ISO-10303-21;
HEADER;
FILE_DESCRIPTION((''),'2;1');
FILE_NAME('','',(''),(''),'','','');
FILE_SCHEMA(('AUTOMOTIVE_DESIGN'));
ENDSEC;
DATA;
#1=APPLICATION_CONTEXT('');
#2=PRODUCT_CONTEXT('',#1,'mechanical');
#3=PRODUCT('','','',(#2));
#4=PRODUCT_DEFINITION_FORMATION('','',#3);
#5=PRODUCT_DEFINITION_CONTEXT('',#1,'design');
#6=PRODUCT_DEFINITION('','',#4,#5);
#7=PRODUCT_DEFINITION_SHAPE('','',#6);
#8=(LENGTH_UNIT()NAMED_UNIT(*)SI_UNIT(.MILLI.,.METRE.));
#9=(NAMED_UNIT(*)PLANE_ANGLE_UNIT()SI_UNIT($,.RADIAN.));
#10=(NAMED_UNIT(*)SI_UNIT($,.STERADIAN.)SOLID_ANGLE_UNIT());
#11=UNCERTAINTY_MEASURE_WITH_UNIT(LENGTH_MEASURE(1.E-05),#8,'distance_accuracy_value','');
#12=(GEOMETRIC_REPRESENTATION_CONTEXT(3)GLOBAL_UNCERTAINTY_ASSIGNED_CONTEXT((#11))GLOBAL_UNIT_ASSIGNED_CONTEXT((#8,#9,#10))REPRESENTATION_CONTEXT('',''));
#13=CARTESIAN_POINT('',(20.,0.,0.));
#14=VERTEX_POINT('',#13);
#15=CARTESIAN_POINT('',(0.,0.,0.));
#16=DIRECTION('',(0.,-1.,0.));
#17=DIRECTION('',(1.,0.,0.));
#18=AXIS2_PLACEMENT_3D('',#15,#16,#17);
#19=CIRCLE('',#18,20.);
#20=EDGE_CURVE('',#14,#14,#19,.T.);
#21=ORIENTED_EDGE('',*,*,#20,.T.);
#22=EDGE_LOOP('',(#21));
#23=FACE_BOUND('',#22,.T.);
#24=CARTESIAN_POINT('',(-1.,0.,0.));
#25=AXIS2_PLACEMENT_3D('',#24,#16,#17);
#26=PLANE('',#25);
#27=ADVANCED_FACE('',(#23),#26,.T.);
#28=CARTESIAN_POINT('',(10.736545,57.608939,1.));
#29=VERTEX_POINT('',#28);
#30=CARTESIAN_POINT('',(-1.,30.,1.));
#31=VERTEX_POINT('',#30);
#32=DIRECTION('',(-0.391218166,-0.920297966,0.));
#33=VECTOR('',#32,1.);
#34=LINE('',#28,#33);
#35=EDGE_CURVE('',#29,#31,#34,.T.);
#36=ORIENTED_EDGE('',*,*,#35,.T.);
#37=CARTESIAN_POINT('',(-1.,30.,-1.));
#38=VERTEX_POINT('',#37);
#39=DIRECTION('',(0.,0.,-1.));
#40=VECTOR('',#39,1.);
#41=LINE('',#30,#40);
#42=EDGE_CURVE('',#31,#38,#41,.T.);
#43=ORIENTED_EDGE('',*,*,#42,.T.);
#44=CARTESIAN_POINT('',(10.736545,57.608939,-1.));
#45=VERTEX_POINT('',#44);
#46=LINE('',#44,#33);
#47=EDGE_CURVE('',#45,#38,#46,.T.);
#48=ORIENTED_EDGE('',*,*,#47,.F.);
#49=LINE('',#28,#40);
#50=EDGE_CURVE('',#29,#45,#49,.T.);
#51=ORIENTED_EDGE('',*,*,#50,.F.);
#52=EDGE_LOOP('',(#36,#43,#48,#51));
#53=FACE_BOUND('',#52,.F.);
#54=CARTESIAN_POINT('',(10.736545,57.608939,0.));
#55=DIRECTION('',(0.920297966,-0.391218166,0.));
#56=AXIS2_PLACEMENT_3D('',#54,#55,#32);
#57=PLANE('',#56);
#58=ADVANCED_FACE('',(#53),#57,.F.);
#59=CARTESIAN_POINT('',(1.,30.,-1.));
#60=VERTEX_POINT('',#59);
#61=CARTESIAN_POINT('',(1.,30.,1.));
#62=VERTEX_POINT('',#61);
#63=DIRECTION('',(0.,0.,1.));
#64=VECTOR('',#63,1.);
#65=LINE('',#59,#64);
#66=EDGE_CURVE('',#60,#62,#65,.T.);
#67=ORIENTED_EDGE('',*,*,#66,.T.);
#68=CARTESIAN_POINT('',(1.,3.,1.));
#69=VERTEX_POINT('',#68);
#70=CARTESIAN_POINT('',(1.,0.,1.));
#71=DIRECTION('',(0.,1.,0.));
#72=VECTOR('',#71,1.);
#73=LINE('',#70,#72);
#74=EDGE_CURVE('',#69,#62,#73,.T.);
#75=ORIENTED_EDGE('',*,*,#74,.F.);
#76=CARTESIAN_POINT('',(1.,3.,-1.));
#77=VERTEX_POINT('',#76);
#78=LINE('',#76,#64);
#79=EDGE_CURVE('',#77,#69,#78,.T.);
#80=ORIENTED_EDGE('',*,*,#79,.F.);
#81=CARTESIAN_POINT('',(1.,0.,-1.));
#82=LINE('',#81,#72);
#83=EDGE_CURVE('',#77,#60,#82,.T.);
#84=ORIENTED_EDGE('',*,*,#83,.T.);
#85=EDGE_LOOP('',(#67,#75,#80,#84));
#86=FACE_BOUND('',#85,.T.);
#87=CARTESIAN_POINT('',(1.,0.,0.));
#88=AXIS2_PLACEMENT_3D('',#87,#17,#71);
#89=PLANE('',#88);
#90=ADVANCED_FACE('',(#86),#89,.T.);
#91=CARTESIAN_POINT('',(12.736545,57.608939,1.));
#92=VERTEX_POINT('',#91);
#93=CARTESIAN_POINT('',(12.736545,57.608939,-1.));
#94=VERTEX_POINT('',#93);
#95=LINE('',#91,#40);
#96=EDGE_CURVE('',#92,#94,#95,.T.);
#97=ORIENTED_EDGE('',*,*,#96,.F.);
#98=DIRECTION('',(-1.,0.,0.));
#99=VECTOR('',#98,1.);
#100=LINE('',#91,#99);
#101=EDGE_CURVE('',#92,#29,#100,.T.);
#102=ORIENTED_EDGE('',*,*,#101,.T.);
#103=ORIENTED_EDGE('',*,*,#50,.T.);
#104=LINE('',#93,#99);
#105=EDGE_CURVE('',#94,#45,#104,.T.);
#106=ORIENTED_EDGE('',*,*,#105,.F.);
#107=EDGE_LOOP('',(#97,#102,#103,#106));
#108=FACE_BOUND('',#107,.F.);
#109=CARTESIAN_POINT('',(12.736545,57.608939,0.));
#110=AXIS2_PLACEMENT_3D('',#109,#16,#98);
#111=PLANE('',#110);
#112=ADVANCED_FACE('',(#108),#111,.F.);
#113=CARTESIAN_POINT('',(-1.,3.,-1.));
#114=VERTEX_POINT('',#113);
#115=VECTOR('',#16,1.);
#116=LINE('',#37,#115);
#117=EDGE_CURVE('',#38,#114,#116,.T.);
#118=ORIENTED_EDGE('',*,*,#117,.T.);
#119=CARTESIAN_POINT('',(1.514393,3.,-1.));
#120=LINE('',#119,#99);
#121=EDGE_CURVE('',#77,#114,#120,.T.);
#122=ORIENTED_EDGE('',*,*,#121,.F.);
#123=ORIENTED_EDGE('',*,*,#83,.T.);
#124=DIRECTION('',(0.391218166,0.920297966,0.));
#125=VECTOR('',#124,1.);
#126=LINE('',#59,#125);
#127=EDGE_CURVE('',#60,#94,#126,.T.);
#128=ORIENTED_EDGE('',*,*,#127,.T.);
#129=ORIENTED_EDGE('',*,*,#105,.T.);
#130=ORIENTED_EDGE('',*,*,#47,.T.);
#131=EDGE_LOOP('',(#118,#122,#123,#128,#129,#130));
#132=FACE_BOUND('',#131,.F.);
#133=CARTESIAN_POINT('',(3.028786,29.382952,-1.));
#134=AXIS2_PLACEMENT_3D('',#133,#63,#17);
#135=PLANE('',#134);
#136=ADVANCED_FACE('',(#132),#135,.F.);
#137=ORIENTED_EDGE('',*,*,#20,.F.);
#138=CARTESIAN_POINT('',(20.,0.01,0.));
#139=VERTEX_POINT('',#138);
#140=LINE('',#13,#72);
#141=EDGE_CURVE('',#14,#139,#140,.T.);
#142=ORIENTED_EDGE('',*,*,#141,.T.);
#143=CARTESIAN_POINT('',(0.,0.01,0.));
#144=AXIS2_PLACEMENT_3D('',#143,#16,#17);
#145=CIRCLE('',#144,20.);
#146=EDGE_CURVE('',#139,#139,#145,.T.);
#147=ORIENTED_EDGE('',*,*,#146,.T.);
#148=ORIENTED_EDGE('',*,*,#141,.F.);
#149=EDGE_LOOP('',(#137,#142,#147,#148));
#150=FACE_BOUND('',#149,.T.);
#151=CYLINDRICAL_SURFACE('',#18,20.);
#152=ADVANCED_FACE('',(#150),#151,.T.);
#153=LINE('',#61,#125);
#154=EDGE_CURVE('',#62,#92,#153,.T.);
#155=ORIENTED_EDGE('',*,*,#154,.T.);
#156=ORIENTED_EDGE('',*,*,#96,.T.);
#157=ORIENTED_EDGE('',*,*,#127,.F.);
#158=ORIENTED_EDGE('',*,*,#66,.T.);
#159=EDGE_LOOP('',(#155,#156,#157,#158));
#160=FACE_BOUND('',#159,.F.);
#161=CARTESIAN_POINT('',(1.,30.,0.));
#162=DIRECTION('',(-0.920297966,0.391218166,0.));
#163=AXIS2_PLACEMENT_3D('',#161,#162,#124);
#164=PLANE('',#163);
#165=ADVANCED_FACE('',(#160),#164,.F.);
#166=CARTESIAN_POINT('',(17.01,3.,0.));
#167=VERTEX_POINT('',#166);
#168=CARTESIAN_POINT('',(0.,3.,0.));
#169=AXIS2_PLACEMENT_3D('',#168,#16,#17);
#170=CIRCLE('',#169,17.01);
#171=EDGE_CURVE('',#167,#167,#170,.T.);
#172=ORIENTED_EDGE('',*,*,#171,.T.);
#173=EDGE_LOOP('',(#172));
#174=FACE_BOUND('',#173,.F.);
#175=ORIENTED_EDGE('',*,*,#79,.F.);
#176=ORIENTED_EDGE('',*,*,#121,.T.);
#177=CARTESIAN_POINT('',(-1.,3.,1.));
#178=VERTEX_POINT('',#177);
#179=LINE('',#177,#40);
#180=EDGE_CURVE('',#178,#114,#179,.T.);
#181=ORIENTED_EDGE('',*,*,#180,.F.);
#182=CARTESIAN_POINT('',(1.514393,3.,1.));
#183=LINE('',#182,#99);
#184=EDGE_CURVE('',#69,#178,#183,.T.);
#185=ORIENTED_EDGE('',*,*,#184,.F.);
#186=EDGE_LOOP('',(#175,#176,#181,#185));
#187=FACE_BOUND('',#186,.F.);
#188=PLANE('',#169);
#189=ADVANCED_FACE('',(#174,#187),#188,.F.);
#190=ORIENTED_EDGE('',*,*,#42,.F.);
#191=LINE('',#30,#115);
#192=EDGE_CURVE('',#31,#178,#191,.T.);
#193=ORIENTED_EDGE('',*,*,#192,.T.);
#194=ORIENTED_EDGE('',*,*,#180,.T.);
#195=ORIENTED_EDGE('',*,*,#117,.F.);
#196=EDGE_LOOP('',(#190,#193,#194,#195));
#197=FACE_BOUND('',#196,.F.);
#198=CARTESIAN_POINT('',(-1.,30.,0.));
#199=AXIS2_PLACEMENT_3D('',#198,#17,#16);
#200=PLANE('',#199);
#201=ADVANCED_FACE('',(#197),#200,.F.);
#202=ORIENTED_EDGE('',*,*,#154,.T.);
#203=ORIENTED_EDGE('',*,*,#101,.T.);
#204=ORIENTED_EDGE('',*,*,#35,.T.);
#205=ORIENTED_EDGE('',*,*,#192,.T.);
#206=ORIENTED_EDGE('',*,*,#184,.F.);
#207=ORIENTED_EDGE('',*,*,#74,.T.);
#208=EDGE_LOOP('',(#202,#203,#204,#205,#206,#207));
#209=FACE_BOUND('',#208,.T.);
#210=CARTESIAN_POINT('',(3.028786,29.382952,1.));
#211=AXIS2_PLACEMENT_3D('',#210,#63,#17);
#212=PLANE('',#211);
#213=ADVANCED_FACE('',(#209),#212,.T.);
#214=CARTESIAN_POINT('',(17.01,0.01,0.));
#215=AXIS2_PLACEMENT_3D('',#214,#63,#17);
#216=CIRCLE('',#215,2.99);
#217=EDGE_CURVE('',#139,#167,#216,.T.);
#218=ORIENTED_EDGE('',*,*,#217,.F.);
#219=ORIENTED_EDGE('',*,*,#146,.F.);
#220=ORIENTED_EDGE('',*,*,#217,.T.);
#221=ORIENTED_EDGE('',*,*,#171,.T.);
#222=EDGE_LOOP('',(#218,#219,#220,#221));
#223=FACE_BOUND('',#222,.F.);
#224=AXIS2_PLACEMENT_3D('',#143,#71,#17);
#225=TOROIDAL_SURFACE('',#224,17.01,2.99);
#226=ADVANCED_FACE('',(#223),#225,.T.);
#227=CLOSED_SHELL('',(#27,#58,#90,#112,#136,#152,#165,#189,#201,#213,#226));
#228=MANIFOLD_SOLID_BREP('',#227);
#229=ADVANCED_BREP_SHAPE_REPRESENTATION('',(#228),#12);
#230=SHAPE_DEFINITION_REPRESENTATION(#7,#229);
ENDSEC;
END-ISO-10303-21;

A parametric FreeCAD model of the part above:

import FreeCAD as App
import Part
import Sketcher
from FreeCAD import Vector
Q = App.Units.Quantity


def edges_at(feature, points):
    """Names of the edges that pass closest to the given points."""
    edges = feature.Shape.Edges
    near = lambda p: min(range(len(edges)), key=lambda i: edges[i].distToShape(Part.Vertex(*p))[0])
    return sorted({f"Edge{near(p) + 1}" for p in points})


def add_polygon(sketch, points):
    """Adds a closed chain of lines whose ends are joined by coincident constraints."""
    first, n = sketch.GeometryCount, len(points)
    for a, b in zip(points, points[1:] + points[:1]):
        sketch.addGeometry(Part.LineSegment(App.Vector(*a, 0), App.Vector(*b, 0)), False)
    for i in range(n):
        sketch.addConstraint(Sketcher.Constraint("Coincident", first + i, 2, first + (i + 1) % n, 1))

doc = App.newDocument("Part")
params = doc.addObject("Spreadsheet::Sheet", "Params")
for row, (alias, value) in enumerate([
    ("sketch1_diameter", "40 mm"),
    ("pad1_length", "3 mm"),
    ("sketch2_width", "2 mm"),
    ("sketch2_height", "30 mm"),
    ("sketch2_length", "30 mm"),
    ("pad2_length", "1 mm"),
    ("pad2_length2", "1 mm"),
    ("fillet_radius", "2.99 mm"),
], start=1):
    params.set(f"A{row}", alias)
    params.set(f"B{row}", "=" + value)
    params.setAlias(f"B{row}", alias)

body = doc.addObject("PartDesign::Body", "Body")

sketch1 = doc.addObject("Sketcher::SketchObject", "Sketch")
body.addObject(sketch1)
sketch1.AttachmentSupport = (doc.XZ_Plane, [""])
sketch1.MapMode = "FlatFace"
sketch1.addGeometry(Part.Circle(Vector(0, 0, 0), Vector(0, 0, 1), 20), False)
sketch1.addConstraint([
    Sketcher.Constraint("Coincident", 0, 3, -1, 1),
    Sketcher.Constraint("Diameter", 0, Q("40 mm")),
])
sketch1.setExpression("Constraints[1]", "Params.sketch1_diameter")
pad1 = doc.addObject("PartDesign::Pad", "Pad")
body.addObject(pad1)
pad1.Profile = sketch1
pad1.setExpression("Length", "Params.pad1_length")
pad1.Reversed = True

sketch2 = doc.addObject("Sketcher::SketchObject", "Sketch001")
body.addObject(sketch2)
sketch2.AttachmentSupport = (doc.XY_Plane, [""])
sketch2.MapMode = "FlatFace"
add_polygon(sketch2, [(-1, 0), (1, 0), (1, 30), (12.7, 57.6), (10.7, 57.6), (-1, 30)])
sketch2.addConstraint([
    Sketcher.Constraint("Horizontal", 0),
    Sketcher.Constraint("Vertical", 1),
    Sketcher.Constraint("Horizontal", 3),
    Sketcher.Constraint("Vertical", 5),
    Sketcher.Constraint("Symmetric", 0, 2, 5, 2, -1, 1),
    Sketcher.Constraint("Parallel", 2, 4),
    Sketcher.Constraint("Horizontal", 1, 2, 4, 2),
    Sketcher.Constraint("DistanceX", 0, 1, 0, 2, Q("2 mm")),
    Sketcher.Constraint("DistanceY", 1, 1, 1, 2, Q("30 mm")),
    Sketcher.Constraint("Distance", 2, Q("30 mm")),
    Sketcher.Constraint("DistanceY", -1, 1, 2, 2, Q("57.608939 mm")),
])
sketch2.setExpression("Constraints[13]", "Params.sketch2_width")
sketch2.setExpression("Constraints[14]", "Params.sketch2_height")
sketch2.setExpression("Constraints[15]", "Params.sketch2_length")
pad2 = doc.addObject("PartDesign::Pad", "Pad001")
body.addObject(pad2)
pad2.Profile = sketch2
pad2.Type = "TwoLengths"
pad2.setExpression("Length", "Params.pad2_length")
pad2.setExpression("Length2", "Params.pad2_length2")
doc.recompute()

fillet = doc.addObject("PartDesign::Fillet", "Fillet")
body.addObject(fillet)
fillet.Base = (pad2, edges_at(pad2, [(-20, 3, 0)]))
fillet.setExpression("Radius", "Params.fillet_radius")

doc.recompute()
